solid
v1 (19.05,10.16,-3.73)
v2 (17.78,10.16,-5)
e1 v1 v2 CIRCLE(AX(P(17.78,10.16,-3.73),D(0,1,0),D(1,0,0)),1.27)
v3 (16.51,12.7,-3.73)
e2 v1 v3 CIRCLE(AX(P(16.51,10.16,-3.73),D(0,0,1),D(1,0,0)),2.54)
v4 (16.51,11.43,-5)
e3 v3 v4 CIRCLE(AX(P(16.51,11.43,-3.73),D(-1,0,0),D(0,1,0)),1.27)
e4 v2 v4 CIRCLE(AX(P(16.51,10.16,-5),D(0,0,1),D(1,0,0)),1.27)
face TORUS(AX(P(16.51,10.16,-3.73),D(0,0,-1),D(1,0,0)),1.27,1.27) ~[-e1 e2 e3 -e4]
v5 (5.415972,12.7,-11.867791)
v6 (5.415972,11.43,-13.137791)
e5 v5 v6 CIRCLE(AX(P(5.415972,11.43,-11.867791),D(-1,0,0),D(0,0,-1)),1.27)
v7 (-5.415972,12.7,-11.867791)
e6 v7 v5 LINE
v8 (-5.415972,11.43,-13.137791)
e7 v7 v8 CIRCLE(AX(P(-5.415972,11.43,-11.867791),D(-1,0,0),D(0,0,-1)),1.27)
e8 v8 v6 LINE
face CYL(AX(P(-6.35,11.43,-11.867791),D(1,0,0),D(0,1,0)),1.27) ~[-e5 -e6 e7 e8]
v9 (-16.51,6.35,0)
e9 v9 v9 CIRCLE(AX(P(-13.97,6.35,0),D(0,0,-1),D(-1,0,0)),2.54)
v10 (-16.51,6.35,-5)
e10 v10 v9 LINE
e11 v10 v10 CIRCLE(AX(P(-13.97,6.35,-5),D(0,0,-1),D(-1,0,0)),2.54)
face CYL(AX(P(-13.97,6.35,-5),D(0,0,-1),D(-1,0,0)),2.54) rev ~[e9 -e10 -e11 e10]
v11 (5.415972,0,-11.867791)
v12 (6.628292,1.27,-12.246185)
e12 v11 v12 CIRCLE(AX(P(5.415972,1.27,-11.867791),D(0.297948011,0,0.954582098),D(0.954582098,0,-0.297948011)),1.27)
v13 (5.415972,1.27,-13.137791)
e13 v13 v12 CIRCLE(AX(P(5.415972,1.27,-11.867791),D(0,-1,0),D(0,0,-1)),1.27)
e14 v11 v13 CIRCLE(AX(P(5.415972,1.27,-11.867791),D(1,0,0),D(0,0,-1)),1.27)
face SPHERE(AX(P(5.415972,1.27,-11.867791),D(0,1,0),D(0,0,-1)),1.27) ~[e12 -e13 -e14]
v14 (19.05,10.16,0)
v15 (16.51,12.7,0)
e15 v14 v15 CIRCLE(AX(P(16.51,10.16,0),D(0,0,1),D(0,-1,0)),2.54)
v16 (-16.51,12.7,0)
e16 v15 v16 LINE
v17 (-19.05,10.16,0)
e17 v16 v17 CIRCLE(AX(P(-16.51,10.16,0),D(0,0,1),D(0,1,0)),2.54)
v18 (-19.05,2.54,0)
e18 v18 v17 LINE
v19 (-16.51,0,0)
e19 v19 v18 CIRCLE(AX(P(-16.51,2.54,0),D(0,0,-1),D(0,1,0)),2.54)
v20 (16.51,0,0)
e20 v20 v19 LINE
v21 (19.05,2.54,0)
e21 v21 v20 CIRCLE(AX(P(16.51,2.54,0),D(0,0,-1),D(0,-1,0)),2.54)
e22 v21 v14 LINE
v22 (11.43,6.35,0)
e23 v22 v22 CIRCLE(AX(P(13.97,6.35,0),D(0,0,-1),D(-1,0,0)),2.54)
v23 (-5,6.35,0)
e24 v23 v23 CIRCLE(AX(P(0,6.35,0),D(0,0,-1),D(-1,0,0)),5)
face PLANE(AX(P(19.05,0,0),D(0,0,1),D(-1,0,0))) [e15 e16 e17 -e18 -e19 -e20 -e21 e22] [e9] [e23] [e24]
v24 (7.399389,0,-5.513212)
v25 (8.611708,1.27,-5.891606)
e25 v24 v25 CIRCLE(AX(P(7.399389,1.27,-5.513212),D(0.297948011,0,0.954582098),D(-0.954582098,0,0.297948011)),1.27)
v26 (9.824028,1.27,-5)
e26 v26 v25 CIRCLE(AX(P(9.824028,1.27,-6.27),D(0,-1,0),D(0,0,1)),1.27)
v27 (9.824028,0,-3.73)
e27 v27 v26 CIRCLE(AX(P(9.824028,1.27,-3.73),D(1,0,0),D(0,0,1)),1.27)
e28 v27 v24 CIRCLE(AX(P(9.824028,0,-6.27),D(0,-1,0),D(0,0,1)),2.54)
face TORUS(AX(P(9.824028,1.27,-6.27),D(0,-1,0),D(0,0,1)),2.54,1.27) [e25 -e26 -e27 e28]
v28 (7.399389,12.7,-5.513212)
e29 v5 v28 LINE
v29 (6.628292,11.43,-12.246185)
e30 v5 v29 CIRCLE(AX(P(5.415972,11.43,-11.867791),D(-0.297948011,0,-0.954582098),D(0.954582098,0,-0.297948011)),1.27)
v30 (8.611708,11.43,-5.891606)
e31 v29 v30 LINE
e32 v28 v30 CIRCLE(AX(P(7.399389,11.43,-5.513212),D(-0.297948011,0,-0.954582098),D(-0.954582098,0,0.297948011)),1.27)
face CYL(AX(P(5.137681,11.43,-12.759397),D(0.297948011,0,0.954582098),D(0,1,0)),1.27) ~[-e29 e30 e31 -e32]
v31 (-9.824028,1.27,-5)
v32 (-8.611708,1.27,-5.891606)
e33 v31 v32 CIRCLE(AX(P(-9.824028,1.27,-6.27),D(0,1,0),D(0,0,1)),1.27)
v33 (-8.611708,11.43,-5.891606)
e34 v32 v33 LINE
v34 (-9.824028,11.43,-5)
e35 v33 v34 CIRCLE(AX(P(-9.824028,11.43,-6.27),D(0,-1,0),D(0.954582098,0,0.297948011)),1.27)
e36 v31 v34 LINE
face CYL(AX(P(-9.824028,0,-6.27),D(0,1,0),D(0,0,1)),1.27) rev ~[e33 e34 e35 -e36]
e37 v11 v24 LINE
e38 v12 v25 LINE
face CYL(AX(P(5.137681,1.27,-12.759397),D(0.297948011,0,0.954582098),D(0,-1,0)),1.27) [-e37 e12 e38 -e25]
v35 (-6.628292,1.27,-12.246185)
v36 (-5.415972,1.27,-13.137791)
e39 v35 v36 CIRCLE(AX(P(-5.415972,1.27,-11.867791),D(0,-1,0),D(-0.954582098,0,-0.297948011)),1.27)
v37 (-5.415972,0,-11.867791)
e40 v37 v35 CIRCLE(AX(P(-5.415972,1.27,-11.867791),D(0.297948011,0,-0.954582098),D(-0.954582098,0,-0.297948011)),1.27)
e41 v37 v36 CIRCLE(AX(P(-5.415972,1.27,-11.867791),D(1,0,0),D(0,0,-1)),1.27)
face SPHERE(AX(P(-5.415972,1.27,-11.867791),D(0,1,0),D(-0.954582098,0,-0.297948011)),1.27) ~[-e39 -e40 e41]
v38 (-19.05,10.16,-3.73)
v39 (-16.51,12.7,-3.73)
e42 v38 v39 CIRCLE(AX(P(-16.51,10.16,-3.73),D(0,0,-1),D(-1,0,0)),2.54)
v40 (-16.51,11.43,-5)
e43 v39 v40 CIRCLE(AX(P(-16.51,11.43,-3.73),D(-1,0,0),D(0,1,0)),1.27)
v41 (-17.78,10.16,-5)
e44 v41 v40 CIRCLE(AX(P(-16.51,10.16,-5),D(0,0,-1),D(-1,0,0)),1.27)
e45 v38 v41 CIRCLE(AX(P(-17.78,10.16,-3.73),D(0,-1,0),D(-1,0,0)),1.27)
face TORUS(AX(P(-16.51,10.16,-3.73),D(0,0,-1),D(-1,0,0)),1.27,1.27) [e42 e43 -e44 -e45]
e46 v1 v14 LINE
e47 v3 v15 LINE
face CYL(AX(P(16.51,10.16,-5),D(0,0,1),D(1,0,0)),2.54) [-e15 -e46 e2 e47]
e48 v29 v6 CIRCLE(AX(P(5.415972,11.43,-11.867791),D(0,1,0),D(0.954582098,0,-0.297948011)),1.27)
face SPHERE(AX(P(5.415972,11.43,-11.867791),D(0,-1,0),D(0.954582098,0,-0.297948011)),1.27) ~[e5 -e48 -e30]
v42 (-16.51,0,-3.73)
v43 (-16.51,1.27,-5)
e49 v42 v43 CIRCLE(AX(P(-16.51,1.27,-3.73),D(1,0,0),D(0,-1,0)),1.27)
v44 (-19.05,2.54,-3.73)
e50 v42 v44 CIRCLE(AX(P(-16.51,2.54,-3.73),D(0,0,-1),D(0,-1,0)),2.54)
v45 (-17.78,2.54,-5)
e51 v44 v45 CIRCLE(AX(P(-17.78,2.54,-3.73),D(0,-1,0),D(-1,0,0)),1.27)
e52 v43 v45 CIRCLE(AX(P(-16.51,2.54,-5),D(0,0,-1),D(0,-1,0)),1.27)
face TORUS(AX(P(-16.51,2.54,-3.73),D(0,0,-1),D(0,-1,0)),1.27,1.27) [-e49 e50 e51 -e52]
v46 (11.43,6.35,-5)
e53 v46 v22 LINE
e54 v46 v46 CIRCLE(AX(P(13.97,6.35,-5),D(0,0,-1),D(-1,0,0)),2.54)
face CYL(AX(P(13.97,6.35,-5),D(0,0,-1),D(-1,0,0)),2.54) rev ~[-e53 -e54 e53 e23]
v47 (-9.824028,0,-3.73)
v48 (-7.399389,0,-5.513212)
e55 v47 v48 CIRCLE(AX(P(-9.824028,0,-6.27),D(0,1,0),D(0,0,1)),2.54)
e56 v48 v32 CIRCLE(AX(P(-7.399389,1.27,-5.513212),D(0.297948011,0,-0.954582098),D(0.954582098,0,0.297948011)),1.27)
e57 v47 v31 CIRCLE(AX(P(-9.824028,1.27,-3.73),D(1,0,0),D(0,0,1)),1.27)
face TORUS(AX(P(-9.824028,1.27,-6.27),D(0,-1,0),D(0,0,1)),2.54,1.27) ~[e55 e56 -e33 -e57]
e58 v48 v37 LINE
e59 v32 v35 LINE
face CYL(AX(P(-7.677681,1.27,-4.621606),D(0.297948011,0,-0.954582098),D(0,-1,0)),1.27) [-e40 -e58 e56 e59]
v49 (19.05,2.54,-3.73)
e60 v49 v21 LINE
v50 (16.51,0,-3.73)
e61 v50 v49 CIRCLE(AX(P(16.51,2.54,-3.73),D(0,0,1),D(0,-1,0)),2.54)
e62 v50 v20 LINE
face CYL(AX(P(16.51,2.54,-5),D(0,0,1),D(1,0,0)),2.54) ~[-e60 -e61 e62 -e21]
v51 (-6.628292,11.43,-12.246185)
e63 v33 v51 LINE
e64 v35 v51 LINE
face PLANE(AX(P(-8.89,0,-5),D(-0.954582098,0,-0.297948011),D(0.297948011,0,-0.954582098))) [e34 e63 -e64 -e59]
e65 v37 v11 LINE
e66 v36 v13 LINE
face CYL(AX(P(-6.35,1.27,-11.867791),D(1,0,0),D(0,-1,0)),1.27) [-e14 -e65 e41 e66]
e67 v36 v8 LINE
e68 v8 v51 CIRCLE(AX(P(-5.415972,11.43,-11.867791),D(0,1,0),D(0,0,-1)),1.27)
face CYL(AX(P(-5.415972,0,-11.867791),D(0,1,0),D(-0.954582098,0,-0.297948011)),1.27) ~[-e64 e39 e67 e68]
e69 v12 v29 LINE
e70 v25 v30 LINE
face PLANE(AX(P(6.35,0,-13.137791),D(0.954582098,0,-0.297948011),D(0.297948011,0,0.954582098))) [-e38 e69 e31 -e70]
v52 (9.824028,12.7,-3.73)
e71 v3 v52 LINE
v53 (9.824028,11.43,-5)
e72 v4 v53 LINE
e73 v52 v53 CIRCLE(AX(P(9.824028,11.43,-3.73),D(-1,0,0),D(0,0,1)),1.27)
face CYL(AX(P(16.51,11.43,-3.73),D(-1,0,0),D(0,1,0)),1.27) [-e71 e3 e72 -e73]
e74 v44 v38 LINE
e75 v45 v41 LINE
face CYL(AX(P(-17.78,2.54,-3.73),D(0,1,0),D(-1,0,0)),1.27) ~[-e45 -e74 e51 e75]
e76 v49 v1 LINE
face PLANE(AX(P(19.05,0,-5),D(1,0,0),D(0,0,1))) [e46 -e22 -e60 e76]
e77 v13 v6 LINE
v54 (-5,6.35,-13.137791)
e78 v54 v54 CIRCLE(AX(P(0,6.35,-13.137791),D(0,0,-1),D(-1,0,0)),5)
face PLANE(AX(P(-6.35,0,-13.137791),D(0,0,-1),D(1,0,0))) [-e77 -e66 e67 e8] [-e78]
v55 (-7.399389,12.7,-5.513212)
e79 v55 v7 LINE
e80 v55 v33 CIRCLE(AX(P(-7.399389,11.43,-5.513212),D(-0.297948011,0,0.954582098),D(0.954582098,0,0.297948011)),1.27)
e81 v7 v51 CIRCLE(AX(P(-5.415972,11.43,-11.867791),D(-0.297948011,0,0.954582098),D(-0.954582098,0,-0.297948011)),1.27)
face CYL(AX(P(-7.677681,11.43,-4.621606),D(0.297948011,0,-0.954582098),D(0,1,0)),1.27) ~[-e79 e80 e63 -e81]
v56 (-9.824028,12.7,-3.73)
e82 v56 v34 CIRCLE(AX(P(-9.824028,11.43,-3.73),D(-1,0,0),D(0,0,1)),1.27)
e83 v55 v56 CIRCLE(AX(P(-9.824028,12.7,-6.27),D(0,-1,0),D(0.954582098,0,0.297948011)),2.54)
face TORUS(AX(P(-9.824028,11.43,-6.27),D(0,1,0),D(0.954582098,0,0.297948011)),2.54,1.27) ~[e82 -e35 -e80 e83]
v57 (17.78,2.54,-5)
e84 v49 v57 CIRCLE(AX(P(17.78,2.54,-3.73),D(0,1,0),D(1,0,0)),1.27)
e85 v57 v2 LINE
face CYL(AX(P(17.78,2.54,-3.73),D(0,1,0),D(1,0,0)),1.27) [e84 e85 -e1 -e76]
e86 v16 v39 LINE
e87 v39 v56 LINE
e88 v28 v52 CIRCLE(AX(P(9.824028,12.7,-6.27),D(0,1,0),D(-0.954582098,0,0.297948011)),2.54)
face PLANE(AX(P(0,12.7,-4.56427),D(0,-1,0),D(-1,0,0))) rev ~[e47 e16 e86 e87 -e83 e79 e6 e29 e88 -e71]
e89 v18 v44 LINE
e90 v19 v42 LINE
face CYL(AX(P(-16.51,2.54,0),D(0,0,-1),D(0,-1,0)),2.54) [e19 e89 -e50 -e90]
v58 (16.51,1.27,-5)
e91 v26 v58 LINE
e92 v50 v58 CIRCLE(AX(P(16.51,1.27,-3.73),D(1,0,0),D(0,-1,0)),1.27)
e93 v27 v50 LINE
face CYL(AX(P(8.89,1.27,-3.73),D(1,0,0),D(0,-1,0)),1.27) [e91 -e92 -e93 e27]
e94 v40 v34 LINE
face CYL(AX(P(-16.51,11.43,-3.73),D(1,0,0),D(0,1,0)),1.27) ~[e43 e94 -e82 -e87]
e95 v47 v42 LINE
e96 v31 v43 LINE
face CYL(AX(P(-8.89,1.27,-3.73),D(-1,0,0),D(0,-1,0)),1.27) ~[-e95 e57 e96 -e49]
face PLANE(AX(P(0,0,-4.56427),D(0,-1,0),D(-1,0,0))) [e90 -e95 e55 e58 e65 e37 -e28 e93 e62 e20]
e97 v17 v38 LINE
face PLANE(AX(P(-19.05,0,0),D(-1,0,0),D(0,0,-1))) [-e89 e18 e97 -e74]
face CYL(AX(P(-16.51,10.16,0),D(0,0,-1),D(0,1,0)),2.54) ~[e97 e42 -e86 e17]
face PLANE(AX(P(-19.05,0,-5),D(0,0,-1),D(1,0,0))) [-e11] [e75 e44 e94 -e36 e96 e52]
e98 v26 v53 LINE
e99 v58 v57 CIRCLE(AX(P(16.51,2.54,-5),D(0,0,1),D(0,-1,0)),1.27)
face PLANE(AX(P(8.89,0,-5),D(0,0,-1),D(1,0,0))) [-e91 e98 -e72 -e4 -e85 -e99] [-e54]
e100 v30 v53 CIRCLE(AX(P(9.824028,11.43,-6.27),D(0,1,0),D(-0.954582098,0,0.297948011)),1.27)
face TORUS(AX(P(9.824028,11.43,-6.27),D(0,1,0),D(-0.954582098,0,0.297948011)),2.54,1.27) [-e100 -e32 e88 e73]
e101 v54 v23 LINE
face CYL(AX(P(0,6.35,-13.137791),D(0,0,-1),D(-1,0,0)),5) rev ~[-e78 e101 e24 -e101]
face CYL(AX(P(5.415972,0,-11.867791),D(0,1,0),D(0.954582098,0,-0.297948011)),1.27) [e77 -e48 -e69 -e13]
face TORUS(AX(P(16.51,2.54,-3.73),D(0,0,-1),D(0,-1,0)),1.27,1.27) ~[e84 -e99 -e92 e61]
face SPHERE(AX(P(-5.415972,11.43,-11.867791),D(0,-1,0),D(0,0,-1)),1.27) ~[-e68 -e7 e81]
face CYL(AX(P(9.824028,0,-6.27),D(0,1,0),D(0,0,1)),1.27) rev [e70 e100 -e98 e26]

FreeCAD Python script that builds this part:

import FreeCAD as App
import Part
import Sketcher
Q = App.Units.Quantity


def edges_at(feature, points):
    """Names of the edges that pass closest to the given points."""
    edges = feature.Shape.Edges
    near = lambda p: min(range(len(edges)), key=lambda i: edges[i].distToShape(Part.Vertex(*p))[0])
    return sorted({f"Edge{near(p) + 1}" for p in points})


def add_polygon(sketch, points):
    """Adds a closed chain of lines whose ends are joined by coincident constraints."""
    first, n = sketch.GeometryCount, len(points)
    for a, b in zip(points, points[1:] + points[:1]):
        sketch.addGeometry(Part.LineSegment(App.Vector(*a, 0), App.Vector(*b, 0)), False)
    for i in range(n):
        sketch.addConstraint(Sketcher.Constraint("Coincident", first + i, 2, first + (i + 1) % n, 1))

doc = App.newDocument("Part")
body = doc.addObject("PartDesign::Body", "Body")

# Sketch on XZ plane
sketch1 = body.newObject("Sketcher::SketchObject", "Sketch")
sketch1.AttachmentSupport = (doc.getObject("XZ_Plane"), [""])
sketch1.MapMode = "FlatFace"
add_polygon(sketch1, [(-19, 0), (19, 0), (19, -5), (9, -5), (6, -13), (-6, -13), (-9, -5), (-19, -5)])  # lines 0-7
sketch1.addConstraint(Sketcher.Constraint("Horizontal", 0))
sketch1.addConstraint(Sketcher.Constraint("Vertical", 1))
sketch1.addConstraint(Sketcher.Constraint("Horizontal", 2))
sketch1.addConstraint(Sketcher.Constraint("Horizontal", 4))
sketch1.addConstraint(Sketcher.Constraint("Horizontal", 6))
sketch1.addConstraint(Sketcher.Constraint("Vertical", 7))
sketch1.addConstraint(Sketcher.Constraint("Symmetric", 0, 2, 7, 2, -1, 1))
sketch1.addConstraint(Sketcher.Constraint("Symmetric", 2, 2, 5, 2, -2))
sketch1.addConstraint(Sketcher.Constraint("Equal", 3, 5))
sketch1.addConstraint(Sketcher.Constraint("DistanceX", 0, 1, 0, 2, Q("1.5 in")))
sketch1.addConstraint(Sketcher.Constraint("DistanceX", 2, 2, 2, 1, Q("0.4 in")))
sketch1.addConstraint(Sketcher.Constraint("DistanceX", 4, 2, 4, 1, Q("0.5 in")))
sketch1.addConstraint(Sketcher.Constraint("DistanceY", 1, 2, 1, 1, 5.0))
sketch1.addConstraint(Sketcher.Constraint("DistanceY", 3, 2, -1, 1, 13.137791))
pad1 = body.newObject("PartDesign::Pad", "Pad")
pad1.Profile = sketch1
pad1.Length = Q("0.5 in")
pad1.Reversed = True

# Sketch on XY plane
sketch2 = body.newObject("Sketcher::SketchObject", "Sketch001")
sketch2.AttachmentSupport = (doc.getObject("XY_Plane"), [""])
sketch2.MapMode = "FlatFace"
sketch2.AttachmentOffset = App.Placement(App.Vector(0, 0, -13.137791), App.Rotation())
sketch2.addGeometry(Part.Circle(App.Vector(0, 6, 0), App.Vector(0, 0, 1), 5), False)
sketch2.addConstraint(Sketcher.Constraint("PointOnObject", 0, 3, -2))
sketch2.addConstraint(Sketcher.Constraint("Diameter", 0, 10.0))
sketch2.addConstraint(Sketcher.Constraint("DistanceY", -1, 1, 0, 3, Q("0.25 in")))
pocket1 = body.newObject("PartDesign::Pocket", "Pocket")
pocket1.Profile = sketch2
pocket1.Type = "ThroughAll"
pocket1.Reversed = True

# Sketch on XY plane
sketch3 = body.newObject("Sketcher::SketchObject", "Sketch002")
sketch3.AttachmentSupport = (doc.getObject("XY_Plane"), [""])
sketch3.MapMode = "FlatFace"
sketch3.AttachmentOffset = App.Placement(App.Vector(0, 0, -5), App.Rotation())
sketch3.addGeometry(Part.Circle(App.Vector(-14, 6.3, 0), App.Vector(0, 0, 1), 2.5), False)
sketch3.addGeometry(Part.Circle(App.Vector(14, 6.3, 0), App.Vector(0, 0, 1), 2.5), False)
sketch3.addConstraint(Sketcher.Constraint("Equal", 0, 1))
sketch3.addConstraint(Sketcher.Constraint("Symmetric", 0, 3, 1, 3, -2))
sketch3.addConstraint(Sketcher.Constraint("Diameter", 0, Q("0.2 in")))
sketch3.addConstraint(Sketcher.Constraint("DistanceX", 0, 3, 1, 3, Q("1.1 in")))
sketch3.addConstraint(Sketcher.Constraint("DistanceY", -1, 1, 0, 3, Q("0.25 in")))
pocket2 = body.newObject("PartDesign::Pocket", "Pocket001")
pocket2.Profile = sketch3
pocket2.Type = "ThroughAll"
pocket2.Reversed = True
doc.recompute()

fillet = body.newObject("PartDesign::Fillet", "Fillet")
fillet.Base = (pocket2, edges_at(pocket2, [
    (19.05, 12.7, -2.5),
    (-19.05, 0, -2.5),
    (-19.05, 12.7, -2.5),
    (19.05, 0, -2.5),
]))
fillet.Radius = Q("0.1 in")
doc.recompute()

fillet2 = body.newObject("PartDesign::Fillet", "Fillet001")
fillet2.Base = (fillet, edges_at(fillet, [
    (-8.89, 6.35, -5),
    (-6.35, 6.35, -13.138),
    (6.35, 6.35, -13.138),
    (8.89, 6.35, -5),
    (7.62, 12.7, -9.069),
    (0, 12.7, -13.138),
    (-7.62, 12.7, -9.069),
    (-12.7, 12.7, -5),
    (-19.05, 6.35, -5),
    (12.7, 0, -5),
    (-18.306, 11.956, -5),
    (-18.306, 0.744, -5),
    (19.05, 6.35, -5),
    (12.7, 12.7, -5),
    (18.306, 11.956, -5),
    (18.306, 0.744, -5),
    (-12.7, 0, -5),
    (-7.62, 0, -9.069),
    (0, 0, -13.138),
    (7.62, 0, -9.069),
]))
fillet2.Radius = Q("0.05 in")

doc.recompute()
